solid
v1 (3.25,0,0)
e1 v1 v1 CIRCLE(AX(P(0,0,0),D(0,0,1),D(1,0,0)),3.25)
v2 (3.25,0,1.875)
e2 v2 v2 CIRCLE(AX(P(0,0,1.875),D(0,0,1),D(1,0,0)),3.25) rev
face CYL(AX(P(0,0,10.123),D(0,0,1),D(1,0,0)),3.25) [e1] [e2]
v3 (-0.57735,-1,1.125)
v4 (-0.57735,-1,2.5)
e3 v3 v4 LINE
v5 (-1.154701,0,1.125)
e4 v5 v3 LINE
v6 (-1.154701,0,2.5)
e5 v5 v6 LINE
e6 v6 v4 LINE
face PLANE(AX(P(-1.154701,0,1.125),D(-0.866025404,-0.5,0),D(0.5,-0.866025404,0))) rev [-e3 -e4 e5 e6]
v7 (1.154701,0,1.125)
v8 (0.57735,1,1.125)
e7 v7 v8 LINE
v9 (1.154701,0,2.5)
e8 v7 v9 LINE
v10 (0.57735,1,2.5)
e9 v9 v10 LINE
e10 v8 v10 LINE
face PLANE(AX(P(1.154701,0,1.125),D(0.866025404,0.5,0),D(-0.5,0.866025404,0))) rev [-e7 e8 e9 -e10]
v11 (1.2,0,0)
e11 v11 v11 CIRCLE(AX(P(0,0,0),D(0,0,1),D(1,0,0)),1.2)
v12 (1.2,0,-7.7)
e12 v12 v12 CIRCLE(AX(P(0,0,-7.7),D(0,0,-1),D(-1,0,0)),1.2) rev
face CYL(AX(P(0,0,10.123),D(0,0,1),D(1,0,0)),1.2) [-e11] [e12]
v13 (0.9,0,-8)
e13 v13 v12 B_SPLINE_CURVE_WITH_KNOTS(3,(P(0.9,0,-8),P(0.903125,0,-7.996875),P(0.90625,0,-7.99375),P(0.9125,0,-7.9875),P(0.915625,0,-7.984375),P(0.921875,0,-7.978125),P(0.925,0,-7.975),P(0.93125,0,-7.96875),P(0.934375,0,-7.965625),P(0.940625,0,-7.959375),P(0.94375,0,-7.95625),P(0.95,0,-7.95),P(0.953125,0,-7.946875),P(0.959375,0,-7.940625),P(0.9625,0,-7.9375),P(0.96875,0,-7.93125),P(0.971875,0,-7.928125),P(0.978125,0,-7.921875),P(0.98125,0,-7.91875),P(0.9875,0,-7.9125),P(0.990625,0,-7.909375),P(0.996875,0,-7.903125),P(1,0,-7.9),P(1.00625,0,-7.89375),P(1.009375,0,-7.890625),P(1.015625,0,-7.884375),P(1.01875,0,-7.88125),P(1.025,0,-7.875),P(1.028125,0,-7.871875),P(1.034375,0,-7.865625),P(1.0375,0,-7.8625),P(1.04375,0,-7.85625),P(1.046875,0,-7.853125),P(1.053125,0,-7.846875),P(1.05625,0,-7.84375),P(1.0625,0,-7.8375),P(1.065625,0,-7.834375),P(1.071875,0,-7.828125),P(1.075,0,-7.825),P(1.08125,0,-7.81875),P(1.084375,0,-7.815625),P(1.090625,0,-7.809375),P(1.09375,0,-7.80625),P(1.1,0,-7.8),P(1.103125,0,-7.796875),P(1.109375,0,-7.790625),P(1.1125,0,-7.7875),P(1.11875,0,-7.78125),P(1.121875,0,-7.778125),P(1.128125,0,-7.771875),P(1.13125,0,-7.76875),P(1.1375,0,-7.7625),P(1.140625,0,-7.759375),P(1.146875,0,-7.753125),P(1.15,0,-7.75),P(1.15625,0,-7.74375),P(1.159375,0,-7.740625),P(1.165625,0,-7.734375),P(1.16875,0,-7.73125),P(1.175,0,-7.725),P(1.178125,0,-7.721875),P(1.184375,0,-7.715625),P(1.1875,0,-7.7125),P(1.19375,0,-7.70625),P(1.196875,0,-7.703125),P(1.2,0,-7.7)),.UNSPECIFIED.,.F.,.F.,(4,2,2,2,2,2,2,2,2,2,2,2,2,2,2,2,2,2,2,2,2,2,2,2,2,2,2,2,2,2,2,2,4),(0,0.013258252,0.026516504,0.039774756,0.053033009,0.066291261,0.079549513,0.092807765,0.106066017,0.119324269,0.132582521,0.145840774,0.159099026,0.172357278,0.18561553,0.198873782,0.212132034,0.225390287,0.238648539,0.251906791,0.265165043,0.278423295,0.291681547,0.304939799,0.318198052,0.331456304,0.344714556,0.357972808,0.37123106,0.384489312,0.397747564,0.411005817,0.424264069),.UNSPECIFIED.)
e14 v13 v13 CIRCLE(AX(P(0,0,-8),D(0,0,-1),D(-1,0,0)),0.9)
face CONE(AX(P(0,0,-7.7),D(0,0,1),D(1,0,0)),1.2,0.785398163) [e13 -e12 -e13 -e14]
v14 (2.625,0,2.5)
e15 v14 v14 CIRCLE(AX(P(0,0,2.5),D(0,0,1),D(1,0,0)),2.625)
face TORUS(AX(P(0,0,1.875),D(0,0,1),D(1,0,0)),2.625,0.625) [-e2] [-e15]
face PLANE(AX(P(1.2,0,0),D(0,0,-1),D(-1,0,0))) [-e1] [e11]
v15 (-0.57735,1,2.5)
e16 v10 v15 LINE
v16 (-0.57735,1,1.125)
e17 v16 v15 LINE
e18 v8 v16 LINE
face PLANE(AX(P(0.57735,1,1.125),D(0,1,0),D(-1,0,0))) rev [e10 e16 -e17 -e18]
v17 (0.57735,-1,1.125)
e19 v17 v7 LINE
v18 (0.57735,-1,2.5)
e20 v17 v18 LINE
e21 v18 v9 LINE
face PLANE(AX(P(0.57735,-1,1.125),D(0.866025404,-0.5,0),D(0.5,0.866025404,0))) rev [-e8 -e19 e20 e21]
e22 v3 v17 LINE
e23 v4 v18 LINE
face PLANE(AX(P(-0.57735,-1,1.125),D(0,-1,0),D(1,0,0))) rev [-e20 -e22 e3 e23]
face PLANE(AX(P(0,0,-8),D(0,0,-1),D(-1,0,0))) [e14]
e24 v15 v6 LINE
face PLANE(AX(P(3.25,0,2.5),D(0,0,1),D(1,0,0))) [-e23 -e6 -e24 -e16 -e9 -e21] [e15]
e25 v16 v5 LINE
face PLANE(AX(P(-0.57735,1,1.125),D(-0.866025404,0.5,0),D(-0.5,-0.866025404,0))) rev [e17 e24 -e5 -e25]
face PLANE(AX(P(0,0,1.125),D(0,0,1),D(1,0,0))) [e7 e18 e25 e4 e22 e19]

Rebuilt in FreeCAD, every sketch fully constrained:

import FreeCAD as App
import Part
import Sketcher
Q = App.Units.Quantity


def edges_at(feature, points):
    """Names of the edges that pass closest to the given points."""
    edges = feature.Shape.Edges
    near = lambda p: min(range(len(edges)), key=lambda i: edges[i].distToShape(Part.Vertex(*p))[0])
    return sorted({f"Edge{near(p) + 1}" for p in points})


def add_polygon(sketch, points):
    """Adds a closed chain of lines whose ends are joined by coincident constraints."""
    first, n = sketch.GeometryCount, len(points)
    for a, b in zip(points, points[1:] + points[:1]):
        sketch.addGeometry(Part.LineSegment(App.Vector(*a, 0), App.Vector(*b, 0)), False)
    for i in range(n):
        sketch.addConstraint(Sketcher.Constraint("Coincident", first + i, 2, first + (i + 1) % n, 1))

doc = App.newDocument("Part")
body = doc.addObject("PartDesign::Body", "Body")

sketch1 = doc.addObject("Sketcher::SketchObject", "Sketch")
body.addObject(sketch1)
sketch1.AttachmentSupport = (doc.XZ_Plane, [""])
sketch1.MapMode = "FlatFace"
add_polygon(sketch1, [(1.2, -8), (0, -8), (0, 2.5), (3.2, 2.5), (3.2, 0), (1.2, 0)])
sketch1.addConstraint(Sketcher.Constraint("Horizontal", 0))
sketch1.addConstraint(Sketcher.Constraint("Vertical", 1))
sketch1.addConstraint(Sketcher.Constraint("Horizontal", 2))
sketch1.addConstraint(Sketcher.Constraint("Vertical", 3))
sketch1.addConstraint(Sketcher.Constraint("Horizontal", 4))
sketch1.addConstraint(Sketcher.Constraint("Vertical", 5))
sketch1.addConstraint(Sketcher.Constraint("PointOnObject", 0, 2, -2))
sketch1.addConstraint(Sketcher.Constraint("PointOnObject", 3, 2, -1))
sketch1.addConstraint(Sketcher.Constraint("DistanceY", 5, 2, 5, 1, 8.0))
sketch1.addConstraint(Sketcher.Constraint("DistanceX", 0, 2, 0, 1, 1.2))
sketch1.addConstraint(Sketcher.Constraint("DistanceY", 1, 1, 1, 2, 10.5))
sketch1.addConstraint(Sketcher.Constraint("DistanceX", 2, 1, 2, 2, 3.25))
revolution = doc.addObject("PartDesign::Revolution", "Revolution")
body.addObject(revolution)
revolution.Profile = sketch1
revolution.ReferenceAxis = (sketch1, ["V_Axis"])
revolution.Angle = 360
doc.recompute()

chamfer = doc.addObject("PartDesign::Chamfer", "Chamfer")
body.addObject(chamfer)
chamfer.Base = (revolution, edges_at(revolution, [(-1.2, 0, -8)]))
chamfer.Size = 0.3
doc.recompute()

fillet = doc.addObject("PartDesign::Fillet", "Fillet")
body.addObject(fillet)
fillet.Base = (chamfer, edges_at(chamfer, [(-3.25, 0, 2.5)]))
fillet.Radius = 0.625

sketch2 = doc.addObject("Sketcher::SketchObject", "Sketch001")
body.addObject(sketch2)
sketch2.AttachmentSupport = (doc.XY_Plane, [""])
sketch2.MapMode = "FlatFace"
sketch2.AttachmentOffset = App.Placement(App.Vector(0, 0, 2.5), App.Rotation())
add_polygon(sketch2, [(1.2, 0), (0.6, 1), (-0.6, 1), (-1.2, 0), (-0.6, -1), (0.6, -1)])
sketch2.addConstraint(Sketcher.Constraint("Horizontal", 1))
sketch2.addConstraint(Sketcher.Constraint("Horizontal", 4))
sketch2.addConstraint(Sketcher.Constraint("Symmetric", 0, 2, 3, 2, -1, 1))
sketch2.addConstraint(Sketcher.Constraint("Symmetric", 2, 2, 5, 2, -1, 1))
sketch2.addConstraint(Sketcher.Constraint("PointOnObject", 2, 2, -1))
sketch2.addConstraint(Sketcher.Constraint("Parallel", 2, 5))
sketch2.addConstraint(Sketcher.Constraint("Vertical", 1, 2, 3, 2))
sketch2.addConstraint(Sketcher.Constraint("Angle", 0, Q("120 deg")))
sketch2.addConstraint(Sketcher.Constraint("DistanceY", -1, 1, 0, 2, 1.0))
sketch2.addConstraint(Sketcher.Constraint("DistanceX", 1, 2, 1, 1, 1.154701))
pocket1 = doc.addObject("PartDesign::Pocket", "Pocket")
body.addObject(pocket1)
pocket1.Profile = sketch2
pocket1.Length = 1.375

doc.recompute()
